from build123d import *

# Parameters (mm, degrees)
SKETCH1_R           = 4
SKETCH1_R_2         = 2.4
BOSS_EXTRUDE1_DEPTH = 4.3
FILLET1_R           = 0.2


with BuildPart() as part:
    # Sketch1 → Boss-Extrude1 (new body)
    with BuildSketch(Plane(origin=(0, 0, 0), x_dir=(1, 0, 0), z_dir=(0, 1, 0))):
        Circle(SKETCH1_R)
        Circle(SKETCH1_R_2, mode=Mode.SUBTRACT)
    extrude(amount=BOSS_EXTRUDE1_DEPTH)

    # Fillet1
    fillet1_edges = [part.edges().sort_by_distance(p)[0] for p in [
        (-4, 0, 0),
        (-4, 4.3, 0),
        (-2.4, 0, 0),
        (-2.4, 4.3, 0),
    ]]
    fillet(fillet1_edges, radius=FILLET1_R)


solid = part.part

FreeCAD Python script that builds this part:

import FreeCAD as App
import Part
import Sketcher

V = App.Vector
Q = App.Units.Quantity


def edges_at(feature, points):
    """Names of the edges that pass closest to the given points."""
    edges = feature.Shape.Edges
    near = lambda p: min(range(len(edges)), key=lambda i: edges[i].distToShape(Part.Vertex(*p))[0])
    return sorted({f"Edge{near(p) + 1}" for p in points})

doc = App.newDocument("Part")
params = doc.addObject("Spreadsheet::Sheet", "Params")
for row, (alias, value) in enumerate([
    ("sketch1_diameter", "8 mm"),
    ("sketch1_diameter2", "4.8 mm"),
    ("pad1_length", "4.3 mm"),
    ("fillet_radius", "0.2 mm"),
], start=1):
    params.set(f"A{row}", alias)
    params.set(f"B{row}", "=" + value)
    params.setAlias(f"B{row}", alias)

body = doc.addObject("PartDesign::Body", "Body")

sketch1 = body.newObject("Sketcher::SketchObject", "Sketch")
sketch1.AttachmentSupport = (doc.getObject("XZ_Plane"), [""])
sketch1.MapMode = "FlatFace"
sketch1.addGeometry([
    Part.Circle(V(0, 0, 0), V(0, 0, 1), 4),
    Part.Circle(V(0, 0, 0), V(0, 0, 1), 2.4),
], False)
sketch1.addConstraint([
    Sketcher.Constraint("Coincident", 0, 3, -1, 1),
    Sketcher.Constraint("Coincident", 1, 3, -1, 1),
    Sketcher.Constraint("Diameter", 0, Q("8 mm")),
    Sketcher.Constraint("Diameter", 1, Q("4.8 mm")),
])
sketch1.setExpression("Constraints[2]", "Params.sketch1_diameter")
sketch1.setExpression("Constraints[3]", "Params.sketch1_diameter2")
pad1 = body.newObject("PartDesign::Pad", "Pad")
pad1.Profile = sketch1
pad1.setExpression("Length", "Params.pad1_length")
pad1.Reversed = True
doc.recompute()

fillet = body.newObject("PartDesign::Fillet", "Fillet")
fillet.Base = (pad1, edges_at(pad1, [
    (-4, 0, 0),
    (-4, 4.3, 0),
    (-2.4, 0, 0),
    (-2.4, 4.3, 0),
]))
fillet.setExpression("Radius", "Params.fillet_radius")

doc.recompute()
